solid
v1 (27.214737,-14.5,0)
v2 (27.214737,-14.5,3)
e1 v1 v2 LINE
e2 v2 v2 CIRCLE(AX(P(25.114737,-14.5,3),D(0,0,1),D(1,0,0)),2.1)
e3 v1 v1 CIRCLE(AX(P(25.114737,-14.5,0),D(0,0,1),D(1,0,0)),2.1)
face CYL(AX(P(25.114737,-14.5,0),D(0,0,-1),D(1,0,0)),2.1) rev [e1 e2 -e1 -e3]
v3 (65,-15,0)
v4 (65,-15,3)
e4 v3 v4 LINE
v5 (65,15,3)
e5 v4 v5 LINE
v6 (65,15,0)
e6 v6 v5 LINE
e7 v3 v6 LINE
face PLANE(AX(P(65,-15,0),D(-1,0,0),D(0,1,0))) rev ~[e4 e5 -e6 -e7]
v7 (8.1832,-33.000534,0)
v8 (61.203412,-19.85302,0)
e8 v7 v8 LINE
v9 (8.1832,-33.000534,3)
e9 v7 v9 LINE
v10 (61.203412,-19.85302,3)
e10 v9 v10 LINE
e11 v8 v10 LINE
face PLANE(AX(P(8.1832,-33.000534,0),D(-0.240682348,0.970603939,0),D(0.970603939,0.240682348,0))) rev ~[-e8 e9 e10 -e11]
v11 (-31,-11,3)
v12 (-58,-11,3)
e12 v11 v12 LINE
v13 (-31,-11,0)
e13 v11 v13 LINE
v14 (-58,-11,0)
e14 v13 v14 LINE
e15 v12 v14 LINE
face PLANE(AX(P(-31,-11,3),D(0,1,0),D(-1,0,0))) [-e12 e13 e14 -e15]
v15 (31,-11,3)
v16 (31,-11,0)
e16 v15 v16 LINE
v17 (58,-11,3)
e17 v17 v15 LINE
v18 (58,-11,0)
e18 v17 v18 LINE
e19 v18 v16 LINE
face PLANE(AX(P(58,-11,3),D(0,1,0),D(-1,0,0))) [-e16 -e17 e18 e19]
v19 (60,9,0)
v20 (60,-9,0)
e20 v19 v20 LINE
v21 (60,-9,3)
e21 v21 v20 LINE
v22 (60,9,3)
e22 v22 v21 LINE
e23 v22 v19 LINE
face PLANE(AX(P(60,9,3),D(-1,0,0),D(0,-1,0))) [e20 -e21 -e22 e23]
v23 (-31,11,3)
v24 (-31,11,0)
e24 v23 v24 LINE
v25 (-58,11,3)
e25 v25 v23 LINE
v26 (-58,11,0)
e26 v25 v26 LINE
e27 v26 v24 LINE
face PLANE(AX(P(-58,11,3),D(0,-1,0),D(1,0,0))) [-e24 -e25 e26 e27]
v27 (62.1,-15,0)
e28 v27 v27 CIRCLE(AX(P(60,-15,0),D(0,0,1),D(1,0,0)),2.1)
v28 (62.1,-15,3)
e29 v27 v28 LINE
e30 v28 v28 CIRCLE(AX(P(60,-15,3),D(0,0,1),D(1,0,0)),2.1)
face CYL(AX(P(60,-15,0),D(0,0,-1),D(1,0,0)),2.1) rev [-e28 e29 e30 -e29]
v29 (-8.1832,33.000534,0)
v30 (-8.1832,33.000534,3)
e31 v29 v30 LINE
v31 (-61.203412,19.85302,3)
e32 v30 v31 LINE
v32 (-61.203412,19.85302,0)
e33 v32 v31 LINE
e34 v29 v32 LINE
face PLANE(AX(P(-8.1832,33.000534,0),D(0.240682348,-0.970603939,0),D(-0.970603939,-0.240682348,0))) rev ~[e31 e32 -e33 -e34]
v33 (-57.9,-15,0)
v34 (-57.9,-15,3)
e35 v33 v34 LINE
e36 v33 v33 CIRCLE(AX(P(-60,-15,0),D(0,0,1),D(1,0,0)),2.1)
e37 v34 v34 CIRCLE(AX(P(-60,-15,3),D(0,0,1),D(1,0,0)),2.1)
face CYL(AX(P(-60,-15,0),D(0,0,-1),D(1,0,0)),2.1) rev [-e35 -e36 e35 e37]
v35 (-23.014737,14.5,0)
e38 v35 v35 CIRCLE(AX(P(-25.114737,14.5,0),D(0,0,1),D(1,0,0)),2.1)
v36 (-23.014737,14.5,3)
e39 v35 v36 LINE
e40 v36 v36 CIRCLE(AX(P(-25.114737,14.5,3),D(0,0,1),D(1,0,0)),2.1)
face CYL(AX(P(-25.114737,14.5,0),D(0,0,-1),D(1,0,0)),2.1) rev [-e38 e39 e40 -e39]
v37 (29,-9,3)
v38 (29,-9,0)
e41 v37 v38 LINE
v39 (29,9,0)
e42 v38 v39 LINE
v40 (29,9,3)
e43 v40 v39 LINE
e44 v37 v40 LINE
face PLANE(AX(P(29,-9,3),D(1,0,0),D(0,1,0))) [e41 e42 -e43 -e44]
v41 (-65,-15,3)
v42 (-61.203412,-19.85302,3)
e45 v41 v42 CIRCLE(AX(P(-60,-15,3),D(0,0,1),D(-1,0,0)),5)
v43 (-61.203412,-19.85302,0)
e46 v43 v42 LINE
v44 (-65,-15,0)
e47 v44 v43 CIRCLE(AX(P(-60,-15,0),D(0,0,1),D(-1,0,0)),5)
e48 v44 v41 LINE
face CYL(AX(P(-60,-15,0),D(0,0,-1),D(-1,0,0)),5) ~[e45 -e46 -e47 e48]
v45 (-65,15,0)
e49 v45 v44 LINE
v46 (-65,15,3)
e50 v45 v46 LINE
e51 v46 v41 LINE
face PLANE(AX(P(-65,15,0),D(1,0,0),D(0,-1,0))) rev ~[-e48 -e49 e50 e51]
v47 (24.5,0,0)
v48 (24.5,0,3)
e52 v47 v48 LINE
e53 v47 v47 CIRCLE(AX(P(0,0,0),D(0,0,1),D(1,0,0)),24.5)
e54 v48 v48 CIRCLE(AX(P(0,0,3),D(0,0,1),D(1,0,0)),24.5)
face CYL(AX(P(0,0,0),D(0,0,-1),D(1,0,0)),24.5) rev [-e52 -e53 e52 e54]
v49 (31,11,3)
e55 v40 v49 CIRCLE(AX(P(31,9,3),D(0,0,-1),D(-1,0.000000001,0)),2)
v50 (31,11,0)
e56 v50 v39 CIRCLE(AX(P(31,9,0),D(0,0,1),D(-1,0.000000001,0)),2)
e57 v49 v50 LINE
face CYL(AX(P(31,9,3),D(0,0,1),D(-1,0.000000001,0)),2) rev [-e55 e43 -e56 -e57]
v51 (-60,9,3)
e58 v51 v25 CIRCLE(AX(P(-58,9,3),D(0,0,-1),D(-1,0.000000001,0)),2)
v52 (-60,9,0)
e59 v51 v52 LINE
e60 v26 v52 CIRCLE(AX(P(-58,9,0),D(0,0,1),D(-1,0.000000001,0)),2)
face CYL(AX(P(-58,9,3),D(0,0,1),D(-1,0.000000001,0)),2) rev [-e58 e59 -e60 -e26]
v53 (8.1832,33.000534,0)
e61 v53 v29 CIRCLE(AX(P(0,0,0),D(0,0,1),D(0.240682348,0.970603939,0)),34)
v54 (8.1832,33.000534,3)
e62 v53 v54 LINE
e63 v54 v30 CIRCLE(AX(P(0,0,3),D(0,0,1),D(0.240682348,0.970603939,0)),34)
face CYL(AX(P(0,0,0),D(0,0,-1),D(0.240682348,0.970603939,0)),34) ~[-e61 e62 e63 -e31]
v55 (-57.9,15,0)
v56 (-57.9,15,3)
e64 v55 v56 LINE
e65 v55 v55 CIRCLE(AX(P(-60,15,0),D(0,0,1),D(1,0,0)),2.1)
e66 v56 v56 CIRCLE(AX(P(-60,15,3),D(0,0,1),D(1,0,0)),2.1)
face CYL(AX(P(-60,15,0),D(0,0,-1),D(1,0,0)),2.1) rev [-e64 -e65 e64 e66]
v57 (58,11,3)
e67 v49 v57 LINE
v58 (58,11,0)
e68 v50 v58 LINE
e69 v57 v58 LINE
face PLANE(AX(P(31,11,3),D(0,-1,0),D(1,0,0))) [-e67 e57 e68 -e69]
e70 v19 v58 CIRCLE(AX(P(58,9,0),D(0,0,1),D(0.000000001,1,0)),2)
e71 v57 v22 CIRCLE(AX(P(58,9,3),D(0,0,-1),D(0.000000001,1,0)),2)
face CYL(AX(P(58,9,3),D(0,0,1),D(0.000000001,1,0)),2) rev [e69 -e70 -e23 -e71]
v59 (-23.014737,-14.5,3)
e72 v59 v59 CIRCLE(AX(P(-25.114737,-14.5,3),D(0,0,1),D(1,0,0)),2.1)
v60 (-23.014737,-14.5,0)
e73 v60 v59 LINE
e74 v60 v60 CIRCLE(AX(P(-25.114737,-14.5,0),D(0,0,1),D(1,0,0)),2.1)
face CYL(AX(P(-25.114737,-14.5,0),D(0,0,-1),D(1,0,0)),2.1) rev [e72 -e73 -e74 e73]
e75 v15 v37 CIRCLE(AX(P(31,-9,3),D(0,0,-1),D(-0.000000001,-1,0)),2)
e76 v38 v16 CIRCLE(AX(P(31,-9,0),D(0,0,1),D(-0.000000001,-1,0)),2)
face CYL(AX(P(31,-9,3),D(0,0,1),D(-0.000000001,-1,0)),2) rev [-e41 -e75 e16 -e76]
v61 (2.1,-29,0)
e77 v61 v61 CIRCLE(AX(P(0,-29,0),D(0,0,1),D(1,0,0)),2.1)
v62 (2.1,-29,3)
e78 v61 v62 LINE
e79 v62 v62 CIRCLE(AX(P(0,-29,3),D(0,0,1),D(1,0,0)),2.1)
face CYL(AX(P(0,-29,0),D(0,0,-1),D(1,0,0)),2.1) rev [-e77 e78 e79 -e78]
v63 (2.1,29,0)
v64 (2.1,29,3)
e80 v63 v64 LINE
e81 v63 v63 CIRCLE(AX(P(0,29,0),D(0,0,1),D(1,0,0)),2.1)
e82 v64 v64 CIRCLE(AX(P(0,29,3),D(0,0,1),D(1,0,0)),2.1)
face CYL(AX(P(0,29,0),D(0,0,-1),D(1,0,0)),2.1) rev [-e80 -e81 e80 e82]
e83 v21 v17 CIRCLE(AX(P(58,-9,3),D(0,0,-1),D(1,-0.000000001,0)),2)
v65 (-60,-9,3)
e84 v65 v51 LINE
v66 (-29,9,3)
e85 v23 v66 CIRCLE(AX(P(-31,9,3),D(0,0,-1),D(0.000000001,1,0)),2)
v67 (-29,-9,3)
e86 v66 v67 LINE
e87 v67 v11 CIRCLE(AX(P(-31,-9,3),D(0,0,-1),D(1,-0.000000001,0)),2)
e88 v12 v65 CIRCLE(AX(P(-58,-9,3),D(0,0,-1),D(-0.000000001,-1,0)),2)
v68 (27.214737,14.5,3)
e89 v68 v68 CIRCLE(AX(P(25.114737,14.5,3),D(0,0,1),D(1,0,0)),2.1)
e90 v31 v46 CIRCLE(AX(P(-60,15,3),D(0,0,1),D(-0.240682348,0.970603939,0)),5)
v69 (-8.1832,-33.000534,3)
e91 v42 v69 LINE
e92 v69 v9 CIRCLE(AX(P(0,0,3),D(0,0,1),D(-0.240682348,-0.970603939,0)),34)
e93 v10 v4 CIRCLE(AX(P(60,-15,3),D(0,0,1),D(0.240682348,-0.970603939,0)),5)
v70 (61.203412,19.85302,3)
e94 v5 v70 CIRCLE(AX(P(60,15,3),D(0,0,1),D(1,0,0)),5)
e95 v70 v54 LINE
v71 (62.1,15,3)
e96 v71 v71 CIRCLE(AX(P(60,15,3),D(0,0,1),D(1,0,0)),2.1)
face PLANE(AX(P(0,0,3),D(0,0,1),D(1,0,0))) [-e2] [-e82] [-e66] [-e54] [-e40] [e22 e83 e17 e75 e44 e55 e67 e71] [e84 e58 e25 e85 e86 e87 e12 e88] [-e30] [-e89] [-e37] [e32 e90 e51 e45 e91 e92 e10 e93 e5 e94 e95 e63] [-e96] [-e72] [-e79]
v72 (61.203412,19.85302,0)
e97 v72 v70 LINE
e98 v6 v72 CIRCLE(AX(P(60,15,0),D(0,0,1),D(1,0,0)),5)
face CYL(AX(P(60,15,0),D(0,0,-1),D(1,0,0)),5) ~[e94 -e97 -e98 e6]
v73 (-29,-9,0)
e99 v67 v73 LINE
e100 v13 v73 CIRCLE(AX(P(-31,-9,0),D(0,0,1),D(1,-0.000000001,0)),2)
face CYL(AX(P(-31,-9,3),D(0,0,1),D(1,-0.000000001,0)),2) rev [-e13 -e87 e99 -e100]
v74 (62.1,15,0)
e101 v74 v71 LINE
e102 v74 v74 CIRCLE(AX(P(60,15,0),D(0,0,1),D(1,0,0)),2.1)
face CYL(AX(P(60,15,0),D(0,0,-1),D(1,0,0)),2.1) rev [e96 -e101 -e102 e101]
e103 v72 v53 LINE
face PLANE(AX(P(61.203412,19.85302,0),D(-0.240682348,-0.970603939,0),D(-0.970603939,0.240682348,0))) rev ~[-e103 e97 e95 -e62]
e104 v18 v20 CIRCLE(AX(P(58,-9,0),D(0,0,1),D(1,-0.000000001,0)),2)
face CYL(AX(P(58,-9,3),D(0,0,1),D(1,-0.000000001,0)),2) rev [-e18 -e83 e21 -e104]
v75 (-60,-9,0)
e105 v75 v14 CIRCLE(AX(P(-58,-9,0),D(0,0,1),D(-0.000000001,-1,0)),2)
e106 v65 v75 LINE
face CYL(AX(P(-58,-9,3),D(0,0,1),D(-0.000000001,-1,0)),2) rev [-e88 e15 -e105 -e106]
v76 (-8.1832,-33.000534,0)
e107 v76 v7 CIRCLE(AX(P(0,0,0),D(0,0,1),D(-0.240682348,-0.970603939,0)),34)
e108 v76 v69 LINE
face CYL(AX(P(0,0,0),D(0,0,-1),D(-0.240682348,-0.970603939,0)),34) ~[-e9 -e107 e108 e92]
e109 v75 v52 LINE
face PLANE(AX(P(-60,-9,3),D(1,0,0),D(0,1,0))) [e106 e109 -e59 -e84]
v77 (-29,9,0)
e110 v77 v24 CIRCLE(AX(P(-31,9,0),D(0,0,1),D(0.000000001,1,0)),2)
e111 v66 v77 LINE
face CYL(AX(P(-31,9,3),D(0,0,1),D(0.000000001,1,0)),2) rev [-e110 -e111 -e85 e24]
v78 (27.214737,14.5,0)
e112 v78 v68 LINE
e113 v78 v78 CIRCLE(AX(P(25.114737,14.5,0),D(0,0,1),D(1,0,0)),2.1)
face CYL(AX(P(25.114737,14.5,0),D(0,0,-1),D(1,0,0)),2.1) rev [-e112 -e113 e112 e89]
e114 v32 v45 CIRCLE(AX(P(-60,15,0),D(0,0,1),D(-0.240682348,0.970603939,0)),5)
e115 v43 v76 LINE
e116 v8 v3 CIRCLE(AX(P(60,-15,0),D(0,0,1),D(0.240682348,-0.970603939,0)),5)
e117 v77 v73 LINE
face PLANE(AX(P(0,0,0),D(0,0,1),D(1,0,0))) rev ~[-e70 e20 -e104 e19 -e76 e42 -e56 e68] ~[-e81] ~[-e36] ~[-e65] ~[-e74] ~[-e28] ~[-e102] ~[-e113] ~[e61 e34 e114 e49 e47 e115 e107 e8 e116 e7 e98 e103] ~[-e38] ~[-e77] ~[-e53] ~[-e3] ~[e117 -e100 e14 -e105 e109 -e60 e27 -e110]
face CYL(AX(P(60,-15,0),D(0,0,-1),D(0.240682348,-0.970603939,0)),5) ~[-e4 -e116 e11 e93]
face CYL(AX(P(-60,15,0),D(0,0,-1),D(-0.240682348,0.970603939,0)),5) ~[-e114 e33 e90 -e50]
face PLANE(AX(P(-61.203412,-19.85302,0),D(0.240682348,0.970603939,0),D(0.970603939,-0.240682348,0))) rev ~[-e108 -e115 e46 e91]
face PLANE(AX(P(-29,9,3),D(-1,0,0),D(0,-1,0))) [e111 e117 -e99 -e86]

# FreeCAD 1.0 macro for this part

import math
import FreeCAD as App
import Part
import Sketcher

doc = App.newDocument("Part")
body = doc.addObject("PartDesign::Body", "Body")

# Sketch on XY plane
sketch1 = body.newObject("Sketcher::SketchObject", "Sketch")
sketch1.AttachmentSupport = (doc.getObject("XY_Plane"), [""])
sketch1.MapMode = "FlatFace"
sketch1.addGeometry([
    Part.LineSegment(App.Vector(-65, 15, 0), App.Vector(-65, -15, 0)),  # 0
    Part.ArcOfCircle(Part.Circle(App.Vector(-60, -15, 0), App.Vector(0, 0, 1), 5), math.radians(180), math.radians(256)),  # 1
    Part.LineSegment(App.Vector(-61.2, -19.9, 0), App.Vector(-8.2, -33, 0)),  # 2
    Part.ArcOfCircle(Part.Circle(App.Vector(0, 0, 0), App.Vector(0, 0, 1), 34), math.radians(-104), math.radians(-76)),  # 3
    Part.LineSegment(App.Vector(8.2, -33, 0), App.Vector(61.2, -19.9, 0)),  # 4
    Part.ArcOfCircle(Part.Circle(App.Vector(60, -15, 0), App.Vector(0, 0, 1), 5), math.radians(-76), math.radians(0)),  # 5
    Part.LineSegment(App.Vector(65, -15, 0), App.Vector(65, 15, 0)),  # 6
    Part.ArcOfCircle(Part.Circle(App.Vector(60, 15, 0), App.Vector(0, 0, 1), 5), math.radians(0), math.radians(76)),  # 7
    Part.LineSegment(App.Vector(61.2, 19.9, 0), App.Vector(8.2, 33, 0)),  # 8
    Part.ArcOfCircle(Part.Circle(App.Vector(0, 0, 0), App.Vector(0, 0, 1), 34), math.radians(76), math.radians(104)),  # 9
    Part.LineSegment(App.Vector(-8.2, 33, 0), App.Vector(-61.2, 19.9, 0)),  # 10
    Part.ArcOfCircle(Part.Circle(App.Vector(-60, 15, 0), App.Vector(0, 0, 1), 5), math.radians(104), math.radians(180)),  # 11
    Part.Circle(App.Vector(0, -29, 0), App.Vector(0, 0, 1), 2.1),  # 12
    Part.Circle(App.Vector(-60, -15, 0), App.Vector(0, 0, 1), 2.1),  # 13
    Part.Circle(App.Vector(-25.1, -14.5, 0), App.Vector(0, 0, 1), 2.1),  # 14
    Part.Circle(App.Vector(25.1, -14.5, 0), App.Vector(0, 0, 1), 2.1),  # 15
    Part.Circle(App.Vector(60, -15, 0), App.Vector(0, 0, 1), 2.1),  # 16
    Part.Circle(App.Vector(-60, 15, 0), App.Vector(0, 0, 1), 2.1),  # 17
    Part.Circle(App.Vector(0, 0, 0), App.Vector(0, 0, 1), 24.5),  # 18
    Part.Circle(App.Vector(-25.1, 14.5, 0), App.Vector(0, 0, 1), 2.1),  # 19
    Part.Circle(App.Vector(0, 29, 0), App.Vector(0, 0, 1), 2.1),  # 20
    Part.Circle(App.Vector(25.1, 14.5, 0), App.Vector(0, 0, 1), 2.1),  # 21
    Part.Circle(App.Vector(60, 15, 0), App.Vector(0, 0, 1), 2.1),  # 22
], False)
sketch1.addConstraint([
    Sketcher.Constraint("Tangent", 0, 2, 1, 1),
    Sketcher.Constraint("Tangent", 1, 2, 2, 1),
    Sketcher.Constraint("Tangent", 2, 2, 3, 1),
    Sketcher.Constraint("Tangent", 3, 2, 4, 1),
    Sketcher.Constraint("Tangent", 4, 2, 5, 1),
    Sketcher.Constraint("Tangent", 5, 2, 6, 1),
    Sketcher.Constraint("Tangent", 6, 2, 7, 1),
    Sketcher.Constraint("Tangent", 7, 2, 8, 1),
    Sketcher.Constraint("Tangent", 8, 2, 9, 1),
    Sketcher.Constraint("Tangent", 9, 2, 10, 1),
    Sketcher.Constraint("Tangent", 10, 2, 11, 1),
    Sketcher.Constraint("Tangent", 11, 2, 0, 1),
    Sketcher.Constraint("Vertical", 0),
    Sketcher.Constraint("Vertical", 6),
    Sketcher.Constraint("Coincident", 3, 3, -1, 1),
    Sketcher.Constraint("Coincident", 9, 3, -1, 1),
    Sketcher.Constraint("Coincident", 18, 3, -1, 1),
    Sketcher.Constraint("Coincident", 13, 3, 1, 3),
    Sketcher.Constraint("Coincident", 16, 3, 5, 3),
    Sketcher.Constraint("Coincident", 17, 3, 11, 3),
    Sketcher.Constraint("Coincident", 22, 3, 7, 3),
    Sketcher.Constraint("Equal", 1, 5),
    Sketcher.Constraint("Equal", 5, 7),
    Sketcher.Constraint("Equal", 3, 9),
    Sketcher.Constraint("Equal", 7, 11),
    Sketcher.Constraint("Equal", 12, 13),
    Sketcher.Constraint("Equal", 13, 14),
    Sketcher.Constraint("Equal", 14, 15),
    Sketcher.Constraint("Equal", 15, 16),
    Sketcher.Constraint("Equal", 16, 17),
    Sketcher.Constraint("Equal", 17, 19),
    Sketcher.Constraint("Equal", 19, 20),
    Sketcher.Constraint("Equal", 20, 21),
    Sketcher.Constraint("Equal", 21, 22),
    Sketcher.Constraint("Symmetric", 1, 3, 7, 3, -1, 1),
    Sketcher.Constraint("Symmetric", 15, 3, 19, 3, -1, 1),
    Sketcher.Constraint("Symmetric", 12, 3, 20, 3, -1, 1),
    Sketcher.Constraint("Symmetric", 14, 3, 21, 3, -1, 1),
    Sketcher.Constraint("Symmetric", 14, 3, 15, 3, -2),
    Sketcher.Constraint("PointOnObject", 12, 3, -2),
    Sketcher.Constraint("Parallel", 4, 10),
    Sketcher.Constraint("Horizontal", 1, 3, 5, 3),
    Sketcher.Constraint("Diameter", 18, 49.0),
    Sketcher.Constraint("Radius", 1, 5.0),
    Sketcher.Constraint("Radius", 3, 34.0),
    Sketcher.Constraint("Diameter", 12, 4.2),
    Sketcher.Constraint("DistanceY", 0, 2, 0, 1, 30.0),
    Sketcher.Constraint("DistanceX", 1, 3, -1, 1, 60.0),
    Sketcher.Constraint("DistanceY", 12, 3, -1, 1, 29.0),
    Sketcher.Constraint("DistanceY", 14, 3, 19, 3, 29.0),
    Sketcher.Constraint("DistanceX", 14, 3, -1, 1, 25.114737),
])
pad1 = body.newObject("PartDesign::Pad", "Pad")
pad1.Profile = sketch1
pad1.Length = 3

# Sketch on XY plane
sketch2 = body.newObject("Sketcher::SketchObject", "Sketch001")
sketch2.AttachmentSupport = (doc.getObject("XY_Plane"), [""])
sketch2.MapMode = "FlatFace"
sketch2.AttachmentOffset = App.Placement(App.Vector(0, 0, 3), App.Rotation())
sketch2.addGeometry([
    Part.LineSegment(App.Vector(-31, 11, 0), App.Vector(-58, 11, 0)),  # 0
    Part.ArcOfCircle(Part.Circle(App.Vector(-58, 9, 0), App.Vector(0, 0, 1), 2), math.radians(90), math.radians(180)),  # 1
    Part.LineSegment(App.Vector(-60, 9, 0), App.Vector(-60, -9, 0)),  # 2
    Part.ArcOfCircle(Part.Circle(App.Vector(-58, -9, 0), App.Vector(0, 0, 1), 2), math.radians(-180), math.radians(-90)),  # 3
    Part.LineSegment(App.Vector(-58, -11, 0), App.Vector(-31, -11, 0)),  # 4
    Part.ArcOfCircle(Part.Circle(App.Vector(-31, -9, 0), App.Vector(0, 0, 1), 2), math.radians(-90), math.radians(0)),  # 5
    Part.LineSegment(App.Vector(-29, -9, 0), App.Vector(-29, 9, 0)),  # 6
    Part.ArcOfCircle(Part.Circle(App.Vector(-31, 9, 0), App.Vector(0, 0, 1), 2), math.radians(0), math.radians(90)),  # 7
    Part.LineSegment(App.Vector(58, 11, 0), App.Vector(31, 11, 0)),  # 8
    Part.ArcOfCircle(Part.Circle(App.Vector(31, 9, 0), App.Vector(0, 0, 1), 2), math.radians(90), math.radians(180)),  # 9
    Part.LineSegment(App.Vector(29, 9, 0), App.Vector(29, -9, 0)),  # 10
    Part.ArcOfCircle(Part.Circle(App.Vector(31, -9, 0), App.Vector(0, 0, 1), 2), math.radians(-180), math.radians(-90)),  # 11
    Part.LineSegment(App.Vector(31, -11, 0), App.Vector(58, -11, 0)),  # 12
    Part.ArcOfCircle(Part.Circle(App.Vector(58, -9, 0), App.Vector(0, 0, 1), 2), math.radians(-90), math.radians(0)),  # 13
    Part.LineSegment(App.Vector(60, -9, 0), App.Vector(60, 9, 0)),  # 14
    Part.ArcOfCircle(Part.Circle(App.Vector(58, 9, 0), App.Vector(0, 0, 1), 2), math.radians(0), math.radians(90)),  # 15
], False)
sketch2.addConstraint([
    Sketcher.Constraint("Tangent", 0, 2, 1, 1),
    Sketcher.Constraint("Tangent", 1, 2, 2, 1),
    Sketcher.Constraint("Tangent", 2, 2, 3, 1),
    Sketcher.Constraint("Tangent", 3, 2, 4, 1),
    Sketcher.Constraint("Tangent", 4, 2, 5, 1),
    Sketcher.Constraint("Tangent", 5, 2, 6, 1),
    Sketcher.Constraint("Tangent", 6, 2, 7, 1),
    Sketcher.Constraint("Tangent", 7, 2, 0, 1),
    Sketcher.Constraint("Tangent", 8, 2, 9, 1),
    Sketcher.Constraint("Tangent", 9, 2, 10, 1),
    Sketcher.Constraint("Tangent", 10, 2, 11, 1),
    Sketcher.Constraint("Tangent", 11, 2, 12, 1),
    Sketcher.Constraint("Tangent", 12, 2, 13, 1),
    Sketcher.Constraint("Tangent", 13, 2, 14, 1),
    Sketcher.Constraint("Tangent", 14, 2, 15, 1),
    Sketcher.Constraint("Tangent", 15, 2, 8, 1),
    Sketcher.Constraint("Horizontal", 0),
    Sketcher.Constraint("Vertical", 2),
    Sketcher.Constraint("Horizontal", 4),
    Sketcher.Constraint("Vertical", 6),
    Sketcher.Constraint("Horizontal", 8),
    Sketcher.Constraint("Vertical", 10),
    Sketcher.Constraint("Horizontal", 12),
    Sketcher.Constraint("Vertical", 14),
    Sketcher.Constraint("Equal", 1, 3),
    Sketcher.Constraint("Equal", 3, 5),
    Sketcher.Constraint("Equal", 5, 7),
    Sketcher.Constraint("Equal", 7, 9),
    Sketcher.Constraint("Equal", 9, 11),
    Sketcher.Constraint("Equal", 11, 13),
    Sketcher.Constraint("Equal", 13, 15),
    Sketcher.Constraint("Symmetric", 5, 3, 9, 3, -1, 1),
    Sketcher.Constraint("Symmetric", 1, 3, 13, 3, -1, 1),
    Sketcher.Constraint("Horizontal", 7, 3, 9, 3),
    Sketcher.Constraint("Radius", 1, 2.0),
    Sketcher.Constraint("DistanceX", 0, 2, 0, 1, 27.0),
    Sketcher.Constraint("DistanceY", 2, 2, 2, 1, 18.0),
    Sketcher.Constraint("DistanceX", 1, 3, -1, 1, 58.0),
])
pocket1 = body.newObject("PartDesign::Pocket", "Pocket")
pocket1.Profile = sketch2
pocket1.Length = 10

doc.recompute()
